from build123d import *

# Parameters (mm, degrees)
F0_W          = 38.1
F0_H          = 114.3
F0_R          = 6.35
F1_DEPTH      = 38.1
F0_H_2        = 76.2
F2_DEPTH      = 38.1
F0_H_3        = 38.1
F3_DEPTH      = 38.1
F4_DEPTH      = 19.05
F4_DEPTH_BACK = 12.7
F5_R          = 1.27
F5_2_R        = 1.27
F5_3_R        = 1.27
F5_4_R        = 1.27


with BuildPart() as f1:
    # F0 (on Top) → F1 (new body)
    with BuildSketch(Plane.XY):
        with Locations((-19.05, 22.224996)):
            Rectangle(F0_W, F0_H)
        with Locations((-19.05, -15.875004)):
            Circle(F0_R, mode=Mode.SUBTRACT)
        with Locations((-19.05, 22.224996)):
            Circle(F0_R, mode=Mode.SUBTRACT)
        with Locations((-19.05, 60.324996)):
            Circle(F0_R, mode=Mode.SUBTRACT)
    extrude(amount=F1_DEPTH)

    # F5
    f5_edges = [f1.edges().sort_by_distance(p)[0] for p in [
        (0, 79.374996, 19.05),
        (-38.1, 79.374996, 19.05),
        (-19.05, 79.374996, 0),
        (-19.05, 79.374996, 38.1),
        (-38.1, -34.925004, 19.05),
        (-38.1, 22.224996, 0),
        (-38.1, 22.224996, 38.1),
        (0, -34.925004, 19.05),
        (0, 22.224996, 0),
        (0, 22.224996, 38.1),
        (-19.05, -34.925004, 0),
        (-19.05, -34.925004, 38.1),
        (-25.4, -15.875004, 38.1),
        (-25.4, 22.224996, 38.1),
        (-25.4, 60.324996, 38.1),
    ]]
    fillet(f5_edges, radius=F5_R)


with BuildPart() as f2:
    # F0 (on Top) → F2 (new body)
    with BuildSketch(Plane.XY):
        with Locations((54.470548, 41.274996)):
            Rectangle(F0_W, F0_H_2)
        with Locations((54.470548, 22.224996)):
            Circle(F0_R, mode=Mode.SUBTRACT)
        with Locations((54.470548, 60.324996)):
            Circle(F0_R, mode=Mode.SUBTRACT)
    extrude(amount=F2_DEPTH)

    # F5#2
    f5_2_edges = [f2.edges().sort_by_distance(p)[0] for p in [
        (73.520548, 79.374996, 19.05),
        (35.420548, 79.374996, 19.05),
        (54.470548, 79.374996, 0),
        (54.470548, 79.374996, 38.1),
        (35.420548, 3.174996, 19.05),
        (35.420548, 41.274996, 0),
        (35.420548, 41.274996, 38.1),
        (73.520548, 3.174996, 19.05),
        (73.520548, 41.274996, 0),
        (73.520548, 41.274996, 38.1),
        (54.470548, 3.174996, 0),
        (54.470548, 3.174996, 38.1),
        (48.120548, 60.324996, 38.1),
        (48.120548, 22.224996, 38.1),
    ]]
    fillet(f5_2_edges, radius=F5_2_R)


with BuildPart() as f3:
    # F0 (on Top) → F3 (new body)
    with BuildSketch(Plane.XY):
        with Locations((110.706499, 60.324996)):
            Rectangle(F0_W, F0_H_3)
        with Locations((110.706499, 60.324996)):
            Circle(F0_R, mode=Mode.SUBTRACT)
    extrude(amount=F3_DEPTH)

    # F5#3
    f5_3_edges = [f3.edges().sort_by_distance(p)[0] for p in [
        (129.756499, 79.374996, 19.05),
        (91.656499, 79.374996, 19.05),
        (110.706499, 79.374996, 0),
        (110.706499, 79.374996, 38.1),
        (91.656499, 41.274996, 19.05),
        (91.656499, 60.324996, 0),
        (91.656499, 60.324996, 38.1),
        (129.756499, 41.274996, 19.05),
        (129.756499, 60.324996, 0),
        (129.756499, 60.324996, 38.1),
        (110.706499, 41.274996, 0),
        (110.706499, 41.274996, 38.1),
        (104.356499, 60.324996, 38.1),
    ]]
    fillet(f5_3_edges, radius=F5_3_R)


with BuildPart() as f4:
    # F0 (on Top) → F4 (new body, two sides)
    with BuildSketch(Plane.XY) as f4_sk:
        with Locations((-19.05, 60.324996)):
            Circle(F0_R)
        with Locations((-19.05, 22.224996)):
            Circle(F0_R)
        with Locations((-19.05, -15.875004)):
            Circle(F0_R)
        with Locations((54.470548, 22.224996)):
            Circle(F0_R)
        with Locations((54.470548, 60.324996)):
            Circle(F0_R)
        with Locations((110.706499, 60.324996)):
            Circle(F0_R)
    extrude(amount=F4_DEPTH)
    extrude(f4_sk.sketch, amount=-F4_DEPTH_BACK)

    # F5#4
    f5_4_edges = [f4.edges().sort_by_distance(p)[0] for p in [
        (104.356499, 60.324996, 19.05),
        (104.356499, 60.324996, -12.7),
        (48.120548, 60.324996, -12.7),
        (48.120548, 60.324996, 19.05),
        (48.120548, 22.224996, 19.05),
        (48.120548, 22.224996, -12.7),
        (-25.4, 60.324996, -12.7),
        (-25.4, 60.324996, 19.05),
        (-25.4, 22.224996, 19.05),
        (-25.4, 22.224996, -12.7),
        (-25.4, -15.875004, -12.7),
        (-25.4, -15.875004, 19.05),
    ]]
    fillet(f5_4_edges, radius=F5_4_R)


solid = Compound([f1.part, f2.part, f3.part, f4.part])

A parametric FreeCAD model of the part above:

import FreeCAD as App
import Part
import Sketcher
Q = App.Units.Quantity


def edges_at(feature, points):
    """Names of the edges that pass closest to the given points."""
    edges = feature.Shape.Edges
    near = lambda p: min(range(len(edges)), key=lambda i: edges[i].distToShape(Part.Vertex(*p))[0])
    return sorted({f"Edge{near(p) + 1}" for p in points})


def add_polygon(sketch, points):
    """Adds a closed chain of lines whose ends are joined by coincident constraints."""
    first, n = sketch.GeometryCount, len(points)
    for a, b in zip(points, points[1:] + points[:1]):
        sketch.addGeometry(Part.LineSegment(App.Vector(*a, 0), App.Vector(*b, 0)), False)
    for i in range(n):
        sketch.addConstraint(Sketcher.Constraint("Coincident", first + i, 2, first + (i + 1) % n, 1))

doc = App.newDocument("Part")
body = doc.addObject("PartDesign::Body", "Body")

# Sketch on XY plane
sketch1 = body.newObject("Sketcher::SketchObject", "Sketch")
sketch1.AttachmentSupport = (doc.getObject("XY_Plane"), [""])
sketch1.MapMode = "FlatFace"
add_polygon(sketch1, [(-38.1, 79.374996), (-38.1, -34.925004), (0, -34.925004), (0, 79.374996)])  # lines 0-3
sketch1.addGeometry(Part.Circle(App.Vector(-19.05, -15.875004, 0), App.Vector(0, 0, 1), 6.35), False)  # 4
sketch1.addGeometry(Part.Circle(App.Vector(-19.05, 22.224996, 0), App.Vector(0, 0, 1), 6.35), False)  # 5
sketch1.addGeometry(Part.Circle(App.Vector(-19.05, 60.324996, 0), App.Vector(0, 0, 1), 6.35), False)  # 6
sketch1.addConstraint([
    Sketcher.Constraint("Vertical", 0),
    Sketcher.Constraint("Horizontal", 1),
    Sketcher.Constraint("Vertical", 2),
    Sketcher.Constraint("Horizontal", 3),
    Sketcher.Constraint("Equal", 4, 5),
    Sketcher.Constraint("Equal", 5, 6),
    Sketcher.Constraint("PointOnObject", 1, 2, -2),
    Sketcher.Constraint("Vertical", 4, 3, 5, 3),
    Sketcher.Constraint("Vertical", 5, 3, 6, 3),
    Sketcher.Constraint("Diameter", 4, Q("0.5 in")),
    Sketcher.Constraint("DistanceX", 1, 1, 1, 2, Q("1.5 in")),
    Sketcher.Constraint("DistanceY", 0, 2, 0, 1, Q("4.5 in")),
    Sketcher.Constraint("DistanceY", 4, 3, 6, 3, Q("3 in")),
    Sketcher.Constraint("DistanceY", 4, 3, 5, 3, Q("1.5 in")),
    Sketcher.Constraint("DistanceX", 4, 3, -1, 1, Q("0.75 in")),
    Sketcher.Constraint("DistanceY", 0, 2, 4, 3, Q("0.75 in")),
    Sketcher.Constraint("DistanceY", 4, 3, -1, 1, Q("0.6250002 in")),
])
pad1 = body.newObject("PartDesign::Pad", "Pad")
pad1.Profile = sketch1
pad1.Length = Q("1.5 in")
doc.recompute()

fillet = body.newObject("PartDesign::Fillet", "Fillet")
fillet.Base = (pad1, edges_at(pad1, [
    (0, 79.375, 19.05),
    (-38.1, 79.375, 19.05),
    (-19.05, 79.375, 0),
    (-19.05, 79.375, 38.1),
    (-38.1, -34.925, 19.05),
    (-38.1, 22.225, 0),
    (-38.1, 22.225, 38.1),
    (0, -34.925, 19.05),
    (0, 22.225, 0),
    (0, 22.225, 38.1),
    (-19.05, -34.925, 0),
    (-19.05, -34.925, 38.1),
    (-25.4, -15.875, 38.1),
    (-25.4, 22.225, 38.1),
    (-25.4, 60.325, 38.1),
]))
fillet.Radius = Q("0.05 in")
body2 = doc.addObject("PartDesign::Body", "Body001")

# Sketch on XY plane
sketch2 = body2.newObject("Sketcher::SketchObject", "Sketch001")
sketch2.AttachmentSupport = (doc.getObject("XY_Plane001"), [""])
sketch2.MapMode = "FlatFace"
add_polygon(sketch2, [(35.420548, 79.374996), (35.420548, 3.174996), (73.520548, 3.174996), (73.520548, 79.374996)])  # lines 0-3
sketch2.addGeometry(Part.Circle(App.Vector(54.470548, 22.224996, 0), App.Vector(0, 0, 1), 6.35), False)  # 4
sketch2.addGeometry(Part.Circle(App.Vector(54.470548, 60.324996, 0), App.Vector(0, 0, 1), 6.35), False)  # 5
sketch2.addConstraint([
    Sketcher.Constraint("Vertical", 0),
    Sketcher.Constraint("Horizontal", 1),
    Sketcher.Constraint("Vertical", 2),
    Sketcher.Constraint("Horizontal", 3),
    Sketcher.Constraint("Equal", 4, 5),
    Sketcher.Constraint("Vertical", 4, 3, 5, 3),
    Sketcher.Constraint("Diameter", 4, Q("0.5 in")),
    Sketcher.Constraint("DistanceY", 0, 2, 0, 1, Q("3 in")),
    Sketcher.Constraint("DistanceX", 1, 1, 1, 2, Q("1.5 in")),
    Sketcher.Constraint("DistanceY", 4, 3, 5, 3, Q("1.5 in")),
    Sketcher.Constraint("DistanceX", 0, 2, 4, 3, Q("0.75 in")),
    Sketcher.Constraint("DistanceY", 0, 2, 4, 3, Q("0.75 in")),
    Sketcher.Constraint("DistanceY", -1, 1, 4, 3, Q("0.8749998 in")),
    Sketcher.Constraint("DistanceX", -1, 1, 1, 2, 73.520548),
])
pad2 = body2.newObject("PartDesign::Pad", "Pad001")
pad2.Profile = sketch2
pad2.Length = Q("1.5 in")
doc.recompute()

fillet2 = body2.newObject("PartDesign::Fillet", "Fillet001")
fillet2.Base = (pad2, edges_at(pad2, [
    (73.521, 79.375, 19.05),
    (35.421, 79.375, 19.05),
    (54.471, 79.375, 0),
    (54.471, 79.375, 38.1),
    (35.421, 3.175, 19.05),
    (35.421, 41.275, 0),
    (35.421, 41.275, 38.1),
    (73.521, 3.175, 19.05),
    (73.521, 41.275, 0),
    (73.521, 41.275, 38.1),
    (54.471, 3.175, 0),
    (54.471, 3.175, 38.1),
    (48.121, 60.325, 38.1),
    (48.121, 22.225, 38.1),
]))
fillet2.Radius = Q("0.05 in")
body3 = doc.addObject("PartDesign::Body", "Body002")

# Sketch on XY plane
sketch3 = body3.newObject("Sketcher::SketchObject", "Sketch002")
sketch3.AttachmentSupport = (doc.getObject("XY_Plane002"), [""])
sketch3.MapMode = "FlatFace"
add_polygon(sketch3, [(91.656499, 79.374996), (91.656499, 41.274996), (129.756499, 41.274996), (129.756499, 79.374996)])  # lines 0-3
sketch3.addGeometry(Part.Circle(App.Vector(110.706499, 60.324996, 0), App.Vector(0, 0, 1), 6.35), False)  # 4
sketch3.addConstraint([
    Sketcher.Constraint("Vertical", 0),
    Sketcher.Constraint("Horizontal", 1),
    Sketcher.Constraint("Vertical", 2),
    Sketcher.Constraint("Horizontal", 3),
    Sketcher.Constraint("Equal", 3, 0),
    Sketcher.Constraint("Diameter", 4, Q("0.5 in")),
    Sketcher.Constraint("DistanceX", 1, 1, 1, 2, Q("1.5 in")),
    Sketcher.Constraint("DistanceX", 0, 2, 4, 3, Q("0.75 in")),
    Sketcher.Constraint("DistanceY", 0, 2, 4, 3, Q("0.75 in")),
    Sketcher.Constraint("DistanceY", -1, 1, 4, 3, Q("2.3749998 in")),
    Sketcher.Constraint("DistanceX", -1, 1, 4, 3, 110.706499),
])
pad3 = body3.newObject("PartDesign::Pad", "Pad002")
pad3.Profile = sketch3
pad3.Length = Q("1.5 in")
doc.recompute()

fillet3 = body3.newObject("PartDesign::Fillet", "Fillet002")
fillet3.Base = (pad3, edges_at(pad3, [
    (129.756, 79.375, 19.05),
    (91.656, 79.375, 19.05),
    (110.706, 79.375, 0),
    (110.706, 79.375, 38.1),
    (91.656, 41.275, 19.05),
    (91.656, 60.325, 0),
    (91.656, 60.325, 38.1),
    (129.756, 41.275, 19.05),
    (129.756, 60.325, 0),
    (129.756, 60.325, 38.1),
    (110.706, 41.275, 0),
    (110.706, 41.275, 38.1),
    (104.356, 60.325, 38.1),
]))
fillet3.Radius = Q("0.05 in")
body4 = doc.addObject("PartDesign::Body", "Body003")
body4.AllowCompound = True

# Sketch on XY plane
sketch4 = body4.newObject("Sketcher::SketchObject", "Sketch003")
sketch4.AttachmentSupport = (doc.getObject("XY_Plane003"), [""])
sketch4.MapMode = "FlatFace"
sketch4.addGeometry([
    Part.Circle(App.Vector(-19.05, 60.324996, 0), App.Vector(0, 0, 1), 6.35),  # 0
    Part.Circle(App.Vector(-19.05, 22.224996, 0), App.Vector(0, 0, 1), 6.35),  # 1
    Part.Circle(App.Vector(-19.05, -15.875004, 0), App.Vector(0, 0, 1), 6.35),  # 2
    Part.Circle(App.Vector(54.470548, 22.224996, 0), App.Vector(0, 0, 1), 6.35),  # 3
    Part.Circle(App.Vector(54.470548, 60.324996, 0), App.Vector(0, 0, 1), 6.35),  # 4
    Part.Circle(App.Vector(110.706499, 60.324996, 0), App.Vector(0, 0, 1), 6.35),  # 5
], False)
sketch4.addConstraint([
    Sketcher.Constraint("Equal", 0, 1),
    Sketcher.Constraint("Equal", 1, 2),
    Sketcher.Constraint("Equal", 2, 3),
    Sketcher.Constraint("Equal", 3, 4),
    Sketcher.Constraint("Equal", 4, 5),
    Sketcher.Constraint("Horizontal", 1, 3, 3, 3),
    Sketcher.Constraint("Horizontal", 0, 3, 4, 3),
    Sketcher.Constraint("Horizontal", 4, 3, 5, 3),
    Sketcher.Constraint("Vertical", 0, 3, 1, 3),
    Sketcher.Constraint("Vertical", 1, 3, 2, 3),
    Sketcher.Constraint("Vertical", 3, 3, 4, 3),
    Sketcher.Constraint("Diameter", 0, Q("0.5 in")),
    Sketcher.Constraint("DistanceY", 2, 3, 0, 3, Q("3 in")),
    Sketcher.Constraint("DistanceY", 1, 3, 0, 3, Q("1.5 in")),
    Sketcher.Constraint("DistanceX", 0, 3, -1, 1, Q("0.75 in")),
    Sketcher.Constraint("DistanceY", -1, 1, 0, 3, Q("2.3749998 in")),
    Sketcher.Constraint("DistanceX", -1, 1, 5, 3, 110.706499),
    Sketcher.Constraint("DistanceX", 1, 3, 3, 3, 73.520548),
])
pad4 = body4.newObject("PartDesign::Pad", "Pad003")
pad4.Profile = sketch4
pad4.Type = "TwoLengths"
pad4.Length = Q("0.75 in")
pad4.Length2 = Q("0.5 in")
doc.recompute()

fillet4 = body4.newObject("PartDesign::Fillet", "Fillet003")
fillet4.Base = (pad4, edges_at(pad4, [
    (104.356, 60.325, 19.05),
    (104.356, 60.325, -12.7),
    (48.121, 60.325, -12.7),
    (48.121, 60.325, 19.05),
    (48.121, 22.225, 19.05),
    (48.121, 22.225, -12.7),
    (-25.4, 60.325, -12.7),
    (-25.4, 60.325, 19.05),
    (-25.4, 22.225, 19.05),
    (-25.4, 22.225, -12.7),
    (-25.4, -15.875, -12.7),
    (-25.4, -15.875, 19.05),
]))
fillet4.Radius = Q("0.05 in")

doc.recompute()
